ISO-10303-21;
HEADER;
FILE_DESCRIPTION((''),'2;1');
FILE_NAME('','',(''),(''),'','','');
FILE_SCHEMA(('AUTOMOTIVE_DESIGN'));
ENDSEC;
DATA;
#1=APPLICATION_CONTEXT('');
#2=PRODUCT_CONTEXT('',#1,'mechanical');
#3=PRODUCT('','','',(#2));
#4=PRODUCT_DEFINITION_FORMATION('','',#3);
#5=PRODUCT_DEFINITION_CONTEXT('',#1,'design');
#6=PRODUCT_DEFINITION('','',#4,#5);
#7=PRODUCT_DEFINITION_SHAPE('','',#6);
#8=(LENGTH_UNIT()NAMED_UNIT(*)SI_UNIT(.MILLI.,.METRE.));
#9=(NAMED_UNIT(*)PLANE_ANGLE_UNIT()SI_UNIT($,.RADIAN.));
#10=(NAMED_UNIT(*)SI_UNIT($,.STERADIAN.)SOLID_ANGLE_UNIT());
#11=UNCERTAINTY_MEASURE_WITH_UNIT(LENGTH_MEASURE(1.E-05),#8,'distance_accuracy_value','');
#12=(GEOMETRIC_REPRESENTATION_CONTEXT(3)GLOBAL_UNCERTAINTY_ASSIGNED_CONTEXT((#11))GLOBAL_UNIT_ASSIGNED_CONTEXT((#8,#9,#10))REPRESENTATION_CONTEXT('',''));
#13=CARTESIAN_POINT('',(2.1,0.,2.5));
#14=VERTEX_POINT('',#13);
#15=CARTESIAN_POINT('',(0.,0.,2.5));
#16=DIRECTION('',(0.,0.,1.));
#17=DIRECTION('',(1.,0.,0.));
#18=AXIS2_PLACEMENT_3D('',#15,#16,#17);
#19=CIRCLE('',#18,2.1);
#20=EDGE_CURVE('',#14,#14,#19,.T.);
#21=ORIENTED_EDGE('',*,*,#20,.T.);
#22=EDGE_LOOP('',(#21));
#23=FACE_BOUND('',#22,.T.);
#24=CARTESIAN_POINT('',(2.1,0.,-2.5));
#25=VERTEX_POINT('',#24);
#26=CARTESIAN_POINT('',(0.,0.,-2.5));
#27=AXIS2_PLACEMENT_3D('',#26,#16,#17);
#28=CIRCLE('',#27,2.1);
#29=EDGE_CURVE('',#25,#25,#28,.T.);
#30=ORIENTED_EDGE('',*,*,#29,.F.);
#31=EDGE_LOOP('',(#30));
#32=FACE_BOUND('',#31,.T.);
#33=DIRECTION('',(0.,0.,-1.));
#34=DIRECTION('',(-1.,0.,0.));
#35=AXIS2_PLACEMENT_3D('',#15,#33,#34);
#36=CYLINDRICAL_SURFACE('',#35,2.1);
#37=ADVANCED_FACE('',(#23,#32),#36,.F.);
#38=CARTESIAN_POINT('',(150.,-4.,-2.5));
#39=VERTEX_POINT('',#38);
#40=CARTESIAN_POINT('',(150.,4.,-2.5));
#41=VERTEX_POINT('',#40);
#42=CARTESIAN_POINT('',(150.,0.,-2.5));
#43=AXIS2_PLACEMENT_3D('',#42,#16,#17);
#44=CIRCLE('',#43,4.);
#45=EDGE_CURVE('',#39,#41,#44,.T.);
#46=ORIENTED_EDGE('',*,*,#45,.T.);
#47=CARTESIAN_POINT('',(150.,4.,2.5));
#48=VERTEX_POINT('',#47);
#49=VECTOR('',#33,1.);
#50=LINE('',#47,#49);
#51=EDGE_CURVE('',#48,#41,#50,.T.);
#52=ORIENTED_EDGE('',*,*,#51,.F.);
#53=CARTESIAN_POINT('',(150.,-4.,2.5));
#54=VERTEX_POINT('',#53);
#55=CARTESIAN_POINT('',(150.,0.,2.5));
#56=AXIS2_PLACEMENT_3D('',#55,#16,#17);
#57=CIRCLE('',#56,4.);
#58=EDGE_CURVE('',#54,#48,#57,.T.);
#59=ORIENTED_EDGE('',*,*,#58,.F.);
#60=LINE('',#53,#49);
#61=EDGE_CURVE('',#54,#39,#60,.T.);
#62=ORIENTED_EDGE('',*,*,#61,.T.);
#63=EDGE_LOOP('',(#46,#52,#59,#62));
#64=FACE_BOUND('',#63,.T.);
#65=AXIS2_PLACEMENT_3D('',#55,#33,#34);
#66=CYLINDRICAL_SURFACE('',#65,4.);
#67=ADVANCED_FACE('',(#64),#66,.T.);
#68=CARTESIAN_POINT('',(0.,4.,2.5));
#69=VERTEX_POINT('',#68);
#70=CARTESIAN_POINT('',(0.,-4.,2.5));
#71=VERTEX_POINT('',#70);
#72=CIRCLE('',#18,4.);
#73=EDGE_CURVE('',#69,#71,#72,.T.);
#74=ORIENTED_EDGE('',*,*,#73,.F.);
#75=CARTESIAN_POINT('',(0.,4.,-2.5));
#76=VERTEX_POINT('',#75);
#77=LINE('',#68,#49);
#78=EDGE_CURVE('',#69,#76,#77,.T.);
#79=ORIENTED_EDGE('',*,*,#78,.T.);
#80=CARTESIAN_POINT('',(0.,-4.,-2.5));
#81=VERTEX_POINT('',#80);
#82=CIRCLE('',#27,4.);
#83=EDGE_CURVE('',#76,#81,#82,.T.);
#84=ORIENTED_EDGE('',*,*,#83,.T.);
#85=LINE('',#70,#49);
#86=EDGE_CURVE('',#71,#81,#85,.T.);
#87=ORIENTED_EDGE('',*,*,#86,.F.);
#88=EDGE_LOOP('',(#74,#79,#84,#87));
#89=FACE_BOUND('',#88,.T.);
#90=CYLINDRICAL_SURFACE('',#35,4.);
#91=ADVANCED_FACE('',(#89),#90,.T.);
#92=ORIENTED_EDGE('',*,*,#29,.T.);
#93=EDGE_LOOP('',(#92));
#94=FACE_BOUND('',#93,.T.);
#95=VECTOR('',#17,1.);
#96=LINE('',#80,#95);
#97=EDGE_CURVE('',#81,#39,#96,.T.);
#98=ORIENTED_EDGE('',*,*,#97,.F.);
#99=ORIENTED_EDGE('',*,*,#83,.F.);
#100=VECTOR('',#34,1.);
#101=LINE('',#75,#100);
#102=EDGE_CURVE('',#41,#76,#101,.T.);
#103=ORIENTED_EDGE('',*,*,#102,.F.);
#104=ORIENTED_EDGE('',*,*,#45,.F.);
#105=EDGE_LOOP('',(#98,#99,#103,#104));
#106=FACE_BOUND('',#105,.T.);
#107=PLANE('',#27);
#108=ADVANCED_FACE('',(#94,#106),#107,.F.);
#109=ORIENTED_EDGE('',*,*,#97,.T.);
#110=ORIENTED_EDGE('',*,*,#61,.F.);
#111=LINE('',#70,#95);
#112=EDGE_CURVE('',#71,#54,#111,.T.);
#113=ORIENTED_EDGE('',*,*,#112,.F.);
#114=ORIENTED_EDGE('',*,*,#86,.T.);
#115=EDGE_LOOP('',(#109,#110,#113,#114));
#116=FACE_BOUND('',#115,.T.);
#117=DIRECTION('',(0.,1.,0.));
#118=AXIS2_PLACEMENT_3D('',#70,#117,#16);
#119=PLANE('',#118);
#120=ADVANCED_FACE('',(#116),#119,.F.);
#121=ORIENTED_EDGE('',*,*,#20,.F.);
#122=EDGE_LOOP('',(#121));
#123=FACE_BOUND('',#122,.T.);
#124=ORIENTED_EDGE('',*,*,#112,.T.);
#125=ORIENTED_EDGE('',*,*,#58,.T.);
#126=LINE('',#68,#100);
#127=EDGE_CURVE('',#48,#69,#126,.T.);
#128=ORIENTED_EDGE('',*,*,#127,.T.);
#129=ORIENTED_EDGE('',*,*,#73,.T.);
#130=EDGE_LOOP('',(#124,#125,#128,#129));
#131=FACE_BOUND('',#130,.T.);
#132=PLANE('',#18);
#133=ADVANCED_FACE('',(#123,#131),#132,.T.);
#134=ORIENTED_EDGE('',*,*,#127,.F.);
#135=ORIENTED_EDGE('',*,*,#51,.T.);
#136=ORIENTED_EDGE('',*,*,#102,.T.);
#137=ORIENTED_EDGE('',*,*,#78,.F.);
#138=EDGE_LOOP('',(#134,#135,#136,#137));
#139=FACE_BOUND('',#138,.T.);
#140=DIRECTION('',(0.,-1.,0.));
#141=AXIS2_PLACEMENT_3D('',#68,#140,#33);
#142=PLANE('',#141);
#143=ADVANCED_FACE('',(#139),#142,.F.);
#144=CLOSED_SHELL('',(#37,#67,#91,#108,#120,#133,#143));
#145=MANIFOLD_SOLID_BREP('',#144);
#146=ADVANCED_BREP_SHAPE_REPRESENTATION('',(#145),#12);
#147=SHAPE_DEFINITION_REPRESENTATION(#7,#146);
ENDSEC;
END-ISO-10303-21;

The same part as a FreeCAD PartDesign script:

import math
import FreeCAD as App
import Part
import Sketcher
from FreeCAD import Vector
Q = App.Units.Quantity

doc = App.newDocument("Part")
body = doc.addObject("PartDesign::Body", "Body")

# Sketch on XY plane
sketch1 = body.newObject("Sketcher::SketchObject", "Sketch")
sketch1.AttachmentSupport = (doc.getObject("XY_Plane"), [""])
sketch1.MapMode = "FlatFace"
sketch1.addGeometry(Part.LineSegment(Vector(150, 4, 0), Vector(0, 4, 0)), False)
sketch1.addGeometry(Part.ArcOfCircle(Part.Circle(Vector(0, 0, 0), Vector(0, 0, 1), 4), math.radians(90), math.radians(270)), False)
sketch1.addGeometry(Part.LineSegment(Vector(0, -4, 0), Vector(150, -4, 0)), False)
sketch1.addGeometry(Part.ArcOfCircle(Part.Circle(Vector(150, 0, 0), Vector(0, 0, 1), 4), math.radians(-90), math.radians(90)), False)
sketch1.addGeometry(Part.Circle(Vector(0, 0, 0), Vector(0, 0, 1), 2.1), False)
sketch1.addConstraint(Sketcher.Constraint("Tangent", 0, 2, 1, 1))
sketch1.addConstraint(Sketcher.Constraint("Tangent", 1, 2, 2, 1))
sketch1.addConstraint(Sketcher.Constraint("Tangent", 2, 2, 3, 1))
sketch1.addConstraint(Sketcher.Constraint("Tangent", 3, 2, 0, 1))
sketch1.addConstraint(Sketcher.Constraint("Horizontal", 0))
sketch1.addConstraint(Sketcher.Constraint("Horizontal", 2))
sketch1.addConstraint(Sketcher.Constraint("Coincident", 1, 3, -1, 1))
sketch1.addConstraint(Sketcher.Constraint("Coincident", 4, 3, -1, 1))
sketch1.addConstraint(Sketcher.Constraint("Radius", 1, Q("4 mm")))
sketch1.addConstraint(Sketcher.Constraint("Diameter", 4, Q("4.2 mm")))
sketch1.addConstraint(Sketcher.Constraint("DistanceX", 0, 2, 0, 1, Q("150 mm")))
pad1 = body.newObject("PartDesign::Pad", "Pad")
pad1.Profile = sketch1
pad1.Length = 5
pad1.Midplane = True

doc.recompute()
